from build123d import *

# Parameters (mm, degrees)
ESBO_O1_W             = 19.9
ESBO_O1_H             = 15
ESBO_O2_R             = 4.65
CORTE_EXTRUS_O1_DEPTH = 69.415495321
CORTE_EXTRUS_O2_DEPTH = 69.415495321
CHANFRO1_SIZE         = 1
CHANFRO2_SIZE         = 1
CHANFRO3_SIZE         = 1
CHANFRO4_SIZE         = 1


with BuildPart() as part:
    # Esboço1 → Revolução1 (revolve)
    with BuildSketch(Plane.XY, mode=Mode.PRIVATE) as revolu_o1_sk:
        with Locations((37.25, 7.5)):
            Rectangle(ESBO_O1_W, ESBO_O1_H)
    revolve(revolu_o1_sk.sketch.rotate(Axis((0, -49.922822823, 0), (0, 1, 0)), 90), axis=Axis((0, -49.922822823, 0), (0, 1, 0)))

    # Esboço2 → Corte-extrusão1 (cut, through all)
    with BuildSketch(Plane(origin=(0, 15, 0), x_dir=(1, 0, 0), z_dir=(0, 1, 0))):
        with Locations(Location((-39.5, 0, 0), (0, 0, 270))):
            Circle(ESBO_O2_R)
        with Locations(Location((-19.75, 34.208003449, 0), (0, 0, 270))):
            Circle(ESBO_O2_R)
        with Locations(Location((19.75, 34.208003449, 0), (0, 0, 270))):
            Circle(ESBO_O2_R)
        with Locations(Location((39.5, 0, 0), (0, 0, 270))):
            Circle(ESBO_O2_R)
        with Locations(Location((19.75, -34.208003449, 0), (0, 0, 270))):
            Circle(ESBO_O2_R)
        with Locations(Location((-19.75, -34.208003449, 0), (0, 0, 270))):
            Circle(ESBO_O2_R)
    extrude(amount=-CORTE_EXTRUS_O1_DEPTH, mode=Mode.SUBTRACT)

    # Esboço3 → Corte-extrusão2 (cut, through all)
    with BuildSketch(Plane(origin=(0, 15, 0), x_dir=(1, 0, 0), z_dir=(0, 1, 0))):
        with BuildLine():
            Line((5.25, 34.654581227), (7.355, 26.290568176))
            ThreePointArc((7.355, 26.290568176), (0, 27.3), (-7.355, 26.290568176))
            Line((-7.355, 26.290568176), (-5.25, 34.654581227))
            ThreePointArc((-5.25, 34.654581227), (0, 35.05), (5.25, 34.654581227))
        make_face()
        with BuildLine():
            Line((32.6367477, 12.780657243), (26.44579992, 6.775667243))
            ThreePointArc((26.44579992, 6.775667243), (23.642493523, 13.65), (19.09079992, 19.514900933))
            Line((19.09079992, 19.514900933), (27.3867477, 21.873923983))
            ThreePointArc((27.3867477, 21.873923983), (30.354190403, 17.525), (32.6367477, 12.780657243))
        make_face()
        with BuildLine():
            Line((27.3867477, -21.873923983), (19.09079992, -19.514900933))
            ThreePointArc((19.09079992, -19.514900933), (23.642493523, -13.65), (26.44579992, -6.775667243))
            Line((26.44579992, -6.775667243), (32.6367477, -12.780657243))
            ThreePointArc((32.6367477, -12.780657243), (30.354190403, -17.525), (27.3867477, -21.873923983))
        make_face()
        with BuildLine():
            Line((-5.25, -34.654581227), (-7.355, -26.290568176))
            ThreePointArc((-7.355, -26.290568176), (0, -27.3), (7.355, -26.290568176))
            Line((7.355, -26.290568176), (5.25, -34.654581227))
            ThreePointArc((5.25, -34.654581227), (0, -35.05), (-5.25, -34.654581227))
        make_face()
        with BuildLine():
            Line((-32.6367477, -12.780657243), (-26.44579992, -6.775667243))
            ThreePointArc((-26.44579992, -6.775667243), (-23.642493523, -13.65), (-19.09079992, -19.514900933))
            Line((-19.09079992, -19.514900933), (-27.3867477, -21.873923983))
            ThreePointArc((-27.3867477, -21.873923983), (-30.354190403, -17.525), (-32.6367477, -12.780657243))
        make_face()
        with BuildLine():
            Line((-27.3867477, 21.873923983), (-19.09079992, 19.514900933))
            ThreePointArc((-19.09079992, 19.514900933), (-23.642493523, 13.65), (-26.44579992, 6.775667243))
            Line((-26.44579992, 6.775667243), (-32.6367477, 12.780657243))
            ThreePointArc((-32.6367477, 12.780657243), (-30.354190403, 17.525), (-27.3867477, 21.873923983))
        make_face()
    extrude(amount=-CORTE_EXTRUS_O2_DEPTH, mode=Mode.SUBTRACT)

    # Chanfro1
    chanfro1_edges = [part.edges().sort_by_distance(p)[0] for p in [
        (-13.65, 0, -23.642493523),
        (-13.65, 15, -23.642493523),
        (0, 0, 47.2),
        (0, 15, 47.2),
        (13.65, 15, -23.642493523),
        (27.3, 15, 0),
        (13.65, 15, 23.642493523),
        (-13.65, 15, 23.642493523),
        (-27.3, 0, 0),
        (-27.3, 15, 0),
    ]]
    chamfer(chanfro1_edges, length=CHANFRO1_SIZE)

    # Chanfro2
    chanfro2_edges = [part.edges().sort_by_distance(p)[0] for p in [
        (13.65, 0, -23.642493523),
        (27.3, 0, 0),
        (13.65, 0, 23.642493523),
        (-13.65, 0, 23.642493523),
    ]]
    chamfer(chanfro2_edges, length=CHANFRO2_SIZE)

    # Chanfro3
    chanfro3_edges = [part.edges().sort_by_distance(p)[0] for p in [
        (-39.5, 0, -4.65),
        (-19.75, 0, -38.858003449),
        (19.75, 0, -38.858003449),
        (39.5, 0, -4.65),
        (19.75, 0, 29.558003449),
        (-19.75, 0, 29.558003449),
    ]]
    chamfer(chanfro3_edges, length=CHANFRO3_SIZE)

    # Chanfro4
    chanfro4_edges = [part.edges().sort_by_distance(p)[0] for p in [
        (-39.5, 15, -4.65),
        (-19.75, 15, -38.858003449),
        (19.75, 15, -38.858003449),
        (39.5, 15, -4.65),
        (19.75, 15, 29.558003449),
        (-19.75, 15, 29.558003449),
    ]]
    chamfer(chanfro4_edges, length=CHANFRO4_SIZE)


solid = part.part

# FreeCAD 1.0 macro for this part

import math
import FreeCAD as App
import Part
import Sketcher
from FreeCAD import Vector


def edges_at(feature, points):
    """Names of the edges that pass closest to the given points."""
    edges = feature.Shape.Edges
    near = lambda p: min(range(len(edges)), key=lambda i: edges[i].distToShape(Part.Vertex(*p))[0])
    return sorted({f"Edge{near(p) + 1}" for p in points})

doc = App.newDocument("Part")
params = doc.addObject("Spreadsheet::Sheet", "Params")
for row, (alias, value) in enumerate([
    ("sketch1_height", "15 mm"),
    ("sketch1_width", "19.9 mm"),
    ("revolution_angle", "360 deg"),
    ("sketch2_diameter", "9.3 mm"),
    ("sketch3_radius", "27.3 mm"),
    ("sketch3_radius2", "35.05 mm"),
    ("chamfer_size", "1 mm"),
    ("chamfer2_size", "1 mm"),
    ("chamfer3_size", "1 mm"),
    ("chamfer4_size", "1 mm"),
], start=1):
    params.set(f"A{row}", alias)
    params.set(f"B{row}", "=" + value)
    params.setAlias(f"B{row}", alias)

body = doc.addObject("PartDesign::Body", "Body")

# Sketch on XY plane
sketch1 = body.newObject("Sketcher::SketchObject", "Sketch")
sketch1.AttachmentSupport = (doc.getObject("XY_Plane"), [""])
sketch1.MapMode = "FlatFace"
sketch1.addGeometry(Part.LineSegment(Vector(27, 15, 0), Vector(27, 0, 0)), False)
sketch1.addGeometry(Part.LineSegment(Vector(27, 0, 0), Vector(47, 0, 0)), False)
sketch1.addGeometry(Part.LineSegment(Vector(47, 0, 0), Vector(47, 15, 0)), False)
sketch1.addGeometry(Part.LineSegment(Vector(47, 15, 0), Vector(27, 15, 0)), False)
sketch1.addConstraint(Sketcher.Constraint("Coincident", 0, 2, 1, 1))
sketch1.addConstraint(Sketcher.Constraint("Coincident", 1, 2, 2, 1))
sketch1.addConstraint(Sketcher.Constraint("Coincident", 2, 2, 3, 1))
sketch1.addConstraint(Sketcher.Constraint("Coincident", 3, 2, 0, 1))
sketch1.addConstraint(Sketcher.Constraint("Vertical", 0))
sketch1.addConstraint(Sketcher.Constraint("Horizontal", 1))
sketch1.addConstraint(Sketcher.Constraint("Vertical", 2))
sketch1.addConstraint(Sketcher.Constraint("Horizontal", 3))
sketch1.addConstraint(Sketcher.Constraint("PointOnObject", 0, 2, -1))
sketch1.addConstraint(Sketcher.Constraint("DistanceY", 0, 2, 0, 1, 15.0))
sketch1.addConstraint(Sketcher.Constraint("DistanceX", 1, 1, 1, 2, 19.9))
sketch1.addConstraint(Sketcher.Constraint("DistanceX", -1, 1, 0, 2, 27.3))
sketch1.setExpression("Constraints[9]", "Params.sketch1_height")
sketch1.setExpression("Constraints[10]", "Params.sketch1_width")
revolution = body.newObject("PartDesign::Revolution", "Revolution")
revolution.Profile = sketch1
revolution.ReferenceAxis = (sketch1, ["V_Axis"])
revolution.setExpression("Angle", "Params.revolution_angle")

# Sketch on XZ plane
sketch2 = body.newObject("Sketcher::SketchObject", "Sketch001")
sketch2.AttachmentSupport = (doc.getObject("XZ_Plane"), [""])
sketch2.MapMode = "FlatFace"
sketch2.AttachmentOffset = App.Placement(Vector(0, 0, -15), App.Rotation())
sketch2.addGeometry(Part.Circle(Vector(-39.5, 0, 0), Vector(0, 0, 1), 4.7), False)
sketch2.addGeometry(Part.Circle(Vector(-19.8, -34.2, 0), Vector(0, 0, 1), 4.7), False)
sketch2.addGeometry(Part.Circle(Vector(19.8, -34.2, 0), Vector(0, 0, 1), 4.7), False)
sketch2.addGeometry(Part.Circle(Vector(39.5, 0, 0), Vector(0, 0, 1), 4.7), False)
sketch2.addGeometry(Part.Circle(Vector(19.8, 34.2, 0), Vector(0, 0, 1), 4.7), False)
sketch2.addGeometry(Part.Circle(Vector(-19.8, 34.2, 0), Vector(0, 0, 1), 4.7), False)
sketch2.addConstraint(Sketcher.Constraint("Equal", 0, 1))
sketch2.addConstraint(Sketcher.Constraint("Equal", 1, 2))
sketch2.addConstraint(Sketcher.Constraint("Equal", 2, 3))
sketch2.addConstraint(Sketcher.Constraint("Equal", 3, 4))
sketch2.addConstraint(Sketcher.Constraint("Equal", 4, 5))
sketch2.addConstraint(Sketcher.Constraint("Symmetric", 0, 3, 3, 3, -1, 1))
sketch2.addConstraint(Sketcher.Constraint("Symmetric", 1, 3, 4, 3, -1, 1))
sketch2.addConstraint(Sketcher.Constraint("Symmetric", 2, 3, 5, 3, -1, 1))
sketch2.addConstraint(Sketcher.Constraint("Symmetric", 1, 3, 2, 3, -2))
sketch2.addConstraint(Sketcher.Constraint("PointOnObject", 0, 3, -1))
sketch2.addConstraint(Sketcher.Constraint("Diameter", 0, 9.3))
sketch2.addConstraint(Sketcher.Constraint("DistanceX", 0, 3, 3, 3, 79.0))
sketch2.addConstraint(Sketcher.Constraint("DistanceX", 1, 3, 2, 3, 39.5))
sketch2.addConstraint(Sketcher.Constraint("DistanceY", 1, 3, -1, 1, 34.208003))
sketch2.setExpression("Constraints[10]", "Params.sketch2_diameter")
pocket1 = body.newObject("PartDesign::Pocket", "Pocket")
pocket1.Profile = sketch2
pocket1.Type = "ThroughAll"
pocket1.Reversed = True

# Sketch on XZ plane
sketch3 = body.newObject("Sketcher::SketchObject", "Sketch002")
sketch3.AttachmentSupport = (doc.getObject("XZ_Plane"), [""])
sketch3.MapMode = "FlatFace"
sketch3.AttachmentOffset = App.Placement(Vector(0, 0, -15), App.Rotation())
sketch3.addGeometry(Part.LineSegment(Vector(7, -26, 0), Vector(5, -35, 0)), False)
sketch3.addGeometry(Part.ArcOfCircle(Part.Circle(Vector(0, 0, 0), Vector(0, 0, 1), 35), math.radians(-98.61), math.radians(-81.39)), False)
sketch3.addGeometry(Part.LineSegment(Vector(-5, -35, 0), Vector(-7, -26, 0)), False)
sketch3.addGeometry(Part.ArcOfCircle(Part.Circle(Vector(0, 0, 0), Vector(0, 0, 1), 27), math.radians(-106), math.radians(-74)), False)
sketch3.addGeometry(Part.LineSegment(Vector(26, -7, 0), Vector(33, -13, 0)), False)
sketch3.addGeometry(Part.ArcOfCircle(Part.Circle(Vector(0, 0, 0), Vector(0, 0, 1), 35), math.radians(-38.61), math.radians(-21.39)), False)
sketch3.addGeometry(Part.LineSegment(Vector(27, -22, 0), Vector(19, -20, 0)), False)
sketch3.addGeometry(Part.ArcOfCircle(Part.Circle(Vector(0, 0, 0), Vector(0, 0, 1), 27), math.radians(-46), math.radians(-14)), False)
sketch3.addGeometry(Part.LineSegment(Vector(19, 20, 0), Vector(27, 22, 0)), False)
sketch3.addGeometry(Part.ArcOfCircle(Part.Circle(Vector(0, 0, 0), Vector(0, 0, 1), 35), math.radians(21.39), math.radians(38.61)), False)
sketch3.addGeometry(Part.LineSegment(Vector(33, 13, 0), Vector(26, 7, 0)), False)
sketch3.addGeometry(Part.ArcOfCircle(Part.Circle(Vector(0, 0, 0), Vector(0, 0, 1), 27), math.radians(14), math.radians(46)), False)
sketch3.addGeometry(Part.LineSegment(Vector(-7, 26, 0), Vector(-5, 35, 0)), False)
sketch3.addGeometry(Part.ArcOfCircle(Part.Circle(Vector(0, 0, 0), Vector(0, 0, 1), 35), math.radians(81.39), math.radians(98.61)), False)
sketch3.addGeometry(Part.LineSegment(Vector(5, 35, 0), Vector(7, 26, 0)), False)
sketch3.addGeometry(Part.ArcOfCircle(Part.Circle(Vector(0, 0, 0), Vector(0, 0, 1), 27), math.radians(74), math.radians(106)), False)
sketch3.addGeometry(Part.LineSegment(Vector(-26, 7, 0), Vector(-33, 13, 0)), False)
sketch3.addGeometry(Part.ArcOfCircle(Part.Circle(Vector(0, 0, 0), Vector(0, 0, 1), 35), math.radians(141.39), math.radians(158.61)), False)
sketch3.addGeometry(Part.LineSegment(Vector(-27, 22, 0), Vector(-19, 20, 0)), False)
sketch3.addGeometry(Part.ArcOfCircle(Part.Circle(Vector(0, 0, 0), Vector(0, 0, 1), 27), math.radians(134), math.radians(166)), False)
sketch3.addGeometry(Part.LineSegment(Vector(-19, -20, 0), Vector(-27, -22, 0)), False)
sketch3.addGeometry(Part.ArcOfCircle(Part.Circle(Vector(0, 0, 0), Vector(0, 0, 1), 35), math.radians(-158.61), math.radians(-141.39)), False)
sketch3.addGeometry(Part.LineSegment(Vector(-33, -13, 0), Vector(-26, -7, 0)), False)
sketch3.addGeometry(Part.ArcOfCircle(Part.Circle(Vector(0, 0, 0), Vector(0, 0, 1), 27), math.radians(-166), math.radians(-134)), False)
sketch3.addConstraint(Sketcher.Constraint("Coincident", 0, 2, 1, 2))
sketch3.addConstraint(Sketcher.Constraint("Coincident", 1, 1, 2, 1))
sketch3.addConstraint(Sketcher.Constraint("Coincident", 2, 2, 3, 1))
sketch3.addConstraint(Sketcher.Constraint("Coincident", 3, 2, 0, 1))
sketch3.addConstraint(Sketcher.Constraint("Coincident", 4, 2, 5, 2))
sketch3.addConstraint(Sketcher.Constraint("Coincident", 5, 1, 6, 1))
sketch3.addConstraint(Sketcher.Constraint("Coincident", 6, 2, 7, 1))
sketch3.addConstraint(Sketcher.Constraint("Coincident", 7, 2, 4, 1))
sketch3.addConstraint(Sketcher.Constraint("Coincident", 8, 2, 9, 2))
sketch3.addConstraint(Sketcher.Constraint("Coincident", 9, 1, 10, 1))
sketch3.addConstraint(Sketcher.Constraint("Coincident", 10, 2, 11, 1))
sketch3.addConstraint(Sketcher.Constraint("Coincident", 11, 2, 8, 1))
sketch3.addConstraint(Sketcher.Constraint("Coincident", 12, 2, 13, 2))
sketch3.addConstraint(Sketcher.Constraint("Coincident", 13, 1, 14, 1))
sketch3.addConstraint(Sketcher.Constraint("Coincident", 14, 2, 15, 1))
sketch3.addConstraint(Sketcher.Constraint("Coincident", 15, 2, 12, 1))
sketch3.addConstraint(Sketcher.Constraint("Coincident", 16, 2, 17, 2))
sketch3.addConstraint(Sketcher.Constraint("Coincident", 17, 1, 18, 1))
sketch3.addConstraint(Sketcher.Constraint("Coincident", 18, 2, 19, 1))
sketch3.addConstraint(Sketcher.Constraint("Coincident", 19, 2, 16, 1))
sketch3.addConstraint(Sketcher.Constraint("Coincident", 20, 2, 21, 2))
sketch3.addConstraint(Sketcher.Constraint("Coincident", 21, 1, 22, 1))
sketch3.addConstraint(Sketcher.Constraint("Coincident", 22, 2, 23, 1))
sketch3.addConstraint(Sketcher.Constraint("Coincident", 23, 2, 20, 1))
sketch3.addConstraint(Sketcher.Constraint("Coincident", 1, 3, -1, 1))
sketch3.addConstraint(Sketcher.Constraint("Coincident", 3, 3, -1, 1))
sketch3.addConstraint(Sketcher.Constraint("Coincident", 5, 3, -1, 1))
sketch3.addConstraint(Sketcher.Constraint("Coincident", 7, 3, -1, 1))
sketch3.addConstraint(Sketcher.Constraint("Coincident", 9, 3, -1, 1))
sketch3.addConstraint(Sketcher.Constraint("Coincident", 11, 3, -1, 1))
sketch3.addConstraint(Sketcher.Constraint("Coincident", 13, 3, -1, 1))
sketch3.addConstraint(Sketcher.Constraint("Coincident", 15, 3, -1, 1))
sketch3.addConstraint(Sketcher.Constraint("Coincident", 17, 3, -1, 1))
sketch3.addConstraint(Sketcher.Constraint("Coincident", 19, 3, -1, 1))
sketch3.addConstraint(Sketcher.Constraint("Coincident", 21, 3, -1, 1))
sketch3.addConstraint(Sketcher.Constraint("Coincident", 23, 3, -1, 1))
sketch3.addConstraint(Sketcher.Constraint("Equal", 1, 5))
sketch3.addConstraint(Sketcher.Constraint("Equal", 3, 7))
sketch3.addConstraint(Sketcher.Constraint("Equal", 5, 9))
sketch3.addConstraint(Sketcher.Constraint("Equal", 7, 11))
sketch3.addConstraint(Sketcher.Constraint("Equal", 9, 13))
sketch3.addConstraint(Sketcher.Constraint("Equal", 11, 15))
sketch3.addConstraint(Sketcher.Constraint("Equal", 13, 17))
sketch3.addConstraint(Sketcher.Constraint("Equal", 15, 19))
sketch3.addConstraint(Sketcher.Constraint("Equal", 17, 21))
sketch3.addConstraint(Sketcher.Constraint("Equal", 19, 23))
sketch3.addConstraint(Sketcher.Constraint("Parallel", 0, 12))
sketch3.addConstraint(Sketcher.Constraint("Parallel", 2, 14))
sketch3.addConstraint(Sketcher.Constraint("Parallel", 4, 16))
sketch3.addConstraint(Sketcher.Constraint("Parallel", 6, 18))
sketch3.addConstraint(Sketcher.Constraint("Parallel", 8, 20))
sketch3.addConstraint(Sketcher.Constraint("Parallel", 10, 22))
sketch3.addConstraint(Sketcher.Constraint("Horizontal", 0, 2, 1, 1))
sketch3.addConstraint(Sketcher.Constraint("Horizontal", 2, 2, 3, 2))
sketch3.addConstraint(Sketcher.Constraint("Horizontal", 12, 2, 13, 1))
sketch3.addConstraint(Sketcher.Constraint("Horizontal", 9, 1, 16, 2))
sketch3.addConstraint(Sketcher.Constraint("Horizontal", 8, 2, 17, 1))
sketch3.addConstraint(Sketcher.Constraint("Horizontal", 11, 2, 18, 2))
sketch3.addConstraint(Sketcher.Constraint("Horizontal", 10, 2, 19, 2))
sketch3.addConstraint(Sketcher.Constraint("Horizontal", 5, 1, 20, 2))
sketch3.addConstraint(Sketcher.Constraint("Horizontal", 4, 2, 21, 1))
sketch3.addConstraint(Sketcher.Constraint("Vertical", 5, 1, 8, 2))
sketch3.addConstraint(Sketcher.Constraint("Vertical", 4, 2, 9, 1))
sketch3.addConstraint(Sketcher.Constraint("Vertical", 1, 1, 12, 2))
sketch3.addConstraint(Sketcher.Constraint("Equal", 2, 4))
sketch3.addConstraint(Sketcher.Constraint("Equal", 4, 6))
sketch3.addConstraint(Sketcher.Constraint("Radius", 3, 27.3))
sketch3.addConstraint(Sketcher.Constraint("Radius", 1, 35.05))
sketch3.addConstraint(Sketcher.Constraint("DistanceX", 1, 1, 0, 2, 10.5))
sketch3.addConstraint(Sketcher.Constraint("DistanceX", 2, 2, 3, 2, 14.71))
sketch3.addConstraint(Sketcher.Constraint("DistanceX", 5, 1, 4, 2, 5.25))
sketch3.addConstraint(Sketcher.Constraint("DistanceX", 6, 2, 7, 2, 7.355))
sketch3.setExpression("Constraints[66]", "Params.sketch3_radius")
sketch3.setExpression("Constraints[67]", "Params.sketch3_radius2")
pocket2 = body.newObject("PartDesign::Pocket", "Pocket001")
pocket2.Profile = sketch3
pocket2.Type = "ThroughAll"
pocket2.Reversed = True
doc.recompute()

chamfer = body.newObject("PartDesign::Chamfer", "Chamfer")
chamfer.Base = (pocket2, edges_at(pocket2, [
    (-13.65, 0, -23.642),
    (-13.65, 15, -23.642),
    (0, 0, 47.2),
    (0, 15, 47.2),
    (13.65, 15, -23.642),
    (27.3, 15, 0),
    (13.65, 15, 23.642),
    (-13.65, 15, 23.642),
    (-27.3, 0, 0),
    (-27.3, 15, 0),
]))
chamfer.setExpression("Size", "Params.chamfer_size")
doc.recompute()

chamfer2 = body.newObject("PartDesign::Chamfer", "Chamfer001")
chamfer2.Base = (chamfer, edges_at(chamfer, [
    (13.65, 0, -23.642),
    (27.3, 0, 0),
    (13.65, 0, 23.642),
    (-13.65, 0, 23.642),
]))
chamfer2.setExpression("Size", "Params.chamfer2_size")
doc.recompute()

chamfer3 = body.newObject("PartDesign::Chamfer", "Chamfer002")
chamfer3.Base = (chamfer2, edges_at(chamfer2, [
    (-39.5, 0, -4.65),
    (-19.75, 0, -38.858),
    (19.75, 0, -38.858),
    (39.5, 0, -4.65),
    (19.75, 0, 29.558),
    (-19.75, 0, 29.558),
]))
chamfer3.setExpression("Size", "Params.chamfer3_size")
doc.recompute()

chamfer4 = body.newObject("PartDesign::Chamfer", "Chamfer003")
chamfer4.Base = (chamfer3, edges_at(chamfer3, [
    (-39.5, 15, -4.65),
    (-19.75, 15, -38.858),
    (19.75, 15, -38.858),
    (39.5, 15, -4.65),
    (19.75, 15, 29.558),
    (-19.75, 15, 29.558),
]))
chamfer4.setExpression("Size", "Params.chamfer4_size")

doc.recompute()
